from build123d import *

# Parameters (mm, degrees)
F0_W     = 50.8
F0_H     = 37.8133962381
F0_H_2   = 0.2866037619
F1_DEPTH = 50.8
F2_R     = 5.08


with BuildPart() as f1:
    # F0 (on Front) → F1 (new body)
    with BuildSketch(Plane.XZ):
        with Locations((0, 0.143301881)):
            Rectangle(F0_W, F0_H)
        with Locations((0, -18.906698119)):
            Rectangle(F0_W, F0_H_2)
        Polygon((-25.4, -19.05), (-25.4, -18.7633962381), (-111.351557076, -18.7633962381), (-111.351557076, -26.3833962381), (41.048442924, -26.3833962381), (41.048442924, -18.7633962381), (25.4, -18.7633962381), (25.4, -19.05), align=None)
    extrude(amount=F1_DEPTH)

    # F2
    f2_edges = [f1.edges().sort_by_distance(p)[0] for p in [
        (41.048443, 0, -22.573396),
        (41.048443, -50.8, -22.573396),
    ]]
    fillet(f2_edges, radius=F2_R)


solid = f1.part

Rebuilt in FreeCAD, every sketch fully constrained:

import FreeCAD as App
import Part
import Sketcher
from FreeCAD import Vector
Q = App.Units.Quantity


def edges_at(feature, points):
    """Names of the edges that pass closest to the given points."""
    edges = feature.Shape.Edges
    near = lambda p: min(range(len(edges)), key=lambda i: edges[i].distToShape(Part.Vertex(*p))[0])
    return sorted({f"Edge{near(p) + 1}" for p in points})

doc = App.newDocument("Part")
body = doc.addObject("PartDesign::Body", "Body")

sketch1 = body.newObject("Sketcher::SketchObject", "Sketch")
sketch1.AttachmentSupport = (doc.getObject("XZ_Plane"), [""])
sketch1.MapMode = "FlatFace"
sketch1.addGeometry(Part.LineSegment(Vector(-25.4, 19.05, 0), Vector(-25.4, -18.763396, 0)), False)
sketch1.addGeometry(Part.LineSegment(Vector(-25.4, -18.763396, 0), Vector(-111.351557, -18.763396, 0)), False)
sketch1.addGeometry(Part.LineSegment(Vector(-111.351557, -18.763396, 0), Vector(-111.351557, -26.383396, 0)), False)
sketch1.addGeometry(Part.LineSegment(Vector(-111.351557, -26.383396, 0), Vector(41.048443, -26.383396, 0)), False)
sketch1.addGeometry(Part.LineSegment(Vector(41.048443, -26.383396, 0), Vector(41.048443, -18.763396, 0)), False)
sketch1.addGeometry(Part.LineSegment(Vector(41.048443, -18.763396, 0), Vector(25.4, -18.763396, 0)), False)
sketch1.addGeometry(Part.LineSegment(Vector(25.4, -18.763396, 0), Vector(25.4, 19.05, 0)), False)
sketch1.addGeometry(Part.LineSegment(Vector(25.4, 19.05, 0), Vector(-25.4, 19.05, 0)), False)
sketch1.addConstraint(Sketcher.Constraint("Coincident", 0, 2, 1, 1))
sketch1.addConstraint(Sketcher.Constraint("Coincident", 1, 2, 2, 1))
sketch1.addConstraint(Sketcher.Constraint("Coincident", 2, 2, 3, 1))
sketch1.addConstraint(Sketcher.Constraint("Coincident", 3, 2, 4, 1))
sketch1.addConstraint(Sketcher.Constraint("Coincident", 4, 2, 5, 1))
sketch1.addConstraint(Sketcher.Constraint("Coincident", 5, 2, 6, 1))
sketch1.addConstraint(Sketcher.Constraint("Coincident", 6, 2, 7, 1))
sketch1.addConstraint(Sketcher.Constraint("Coincident", 7, 2, 0, 1))
sketch1.addConstraint(Sketcher.Constraint("Vertical", 0))
sketch1.addConstraint(Sketcher.Constraint("Horizontal", 1))
sketch1.addConstraint(Sketcher.Constraint("Vertical", 2))
sketch1.addConstraint(Sketcher.Constraint("Horizontal", 3))
sketch1.addConstraint(Sketcher.Constraint("Vertical", 4))
sketch1.addConstraint(Sketcher.Constraint("Horizontal", 5))
sketch1.addConstraint(Sketcher.Constraint("Vertical", 6))
sketch1.addConstraint(Sketcher.Constraint("Horizontal", 7))
sketch1.addConstraint(Sketcher.Constraint("Symmetric", 0, 2, 5, 2, -2))
sketch1.addConstraint(Sketcher.Constraint("DistanceX", 3, 1, 3, 2, Q("6 in")))
sketch1.addConstraint(Sketcher.Constraint("DistanceX", 7, 2, 7, 1, Q("2 in")))
sketch1.addConstraint(Sketcher.Constraint("DistanceY", 2, 2, 2, 1, Q("0.3 in")))
sketch1.addConstraint(Sketcher.Constraint("DistanceY", -1, 1, 6, 2, Q("0.75 in")))
sketch1.addConstraint(Sketcher.Constraint("DistanceX", 1, 2, 1, 1, 85.951557))
sketch1.addConstraint(Sketcher.Constraint("DistanceY", 0, 2, 0, 1, 37.813396))
pad1 = body.newObject("PartDesign::Pad", "Pad")
pad1.Profile = sketch1
pad1.Length = Q("2 in")
doc.recompute()

fillet = body.newObject("PartDesign::Fillet", "Fillet")
fillet.Base = (pad1, edges_at(pad1, [(41.048, 0, -22.573), (41.048, -50.8, -22.573)]))
fillet.Radius = Q("0.2 in")

doc.recompute()
